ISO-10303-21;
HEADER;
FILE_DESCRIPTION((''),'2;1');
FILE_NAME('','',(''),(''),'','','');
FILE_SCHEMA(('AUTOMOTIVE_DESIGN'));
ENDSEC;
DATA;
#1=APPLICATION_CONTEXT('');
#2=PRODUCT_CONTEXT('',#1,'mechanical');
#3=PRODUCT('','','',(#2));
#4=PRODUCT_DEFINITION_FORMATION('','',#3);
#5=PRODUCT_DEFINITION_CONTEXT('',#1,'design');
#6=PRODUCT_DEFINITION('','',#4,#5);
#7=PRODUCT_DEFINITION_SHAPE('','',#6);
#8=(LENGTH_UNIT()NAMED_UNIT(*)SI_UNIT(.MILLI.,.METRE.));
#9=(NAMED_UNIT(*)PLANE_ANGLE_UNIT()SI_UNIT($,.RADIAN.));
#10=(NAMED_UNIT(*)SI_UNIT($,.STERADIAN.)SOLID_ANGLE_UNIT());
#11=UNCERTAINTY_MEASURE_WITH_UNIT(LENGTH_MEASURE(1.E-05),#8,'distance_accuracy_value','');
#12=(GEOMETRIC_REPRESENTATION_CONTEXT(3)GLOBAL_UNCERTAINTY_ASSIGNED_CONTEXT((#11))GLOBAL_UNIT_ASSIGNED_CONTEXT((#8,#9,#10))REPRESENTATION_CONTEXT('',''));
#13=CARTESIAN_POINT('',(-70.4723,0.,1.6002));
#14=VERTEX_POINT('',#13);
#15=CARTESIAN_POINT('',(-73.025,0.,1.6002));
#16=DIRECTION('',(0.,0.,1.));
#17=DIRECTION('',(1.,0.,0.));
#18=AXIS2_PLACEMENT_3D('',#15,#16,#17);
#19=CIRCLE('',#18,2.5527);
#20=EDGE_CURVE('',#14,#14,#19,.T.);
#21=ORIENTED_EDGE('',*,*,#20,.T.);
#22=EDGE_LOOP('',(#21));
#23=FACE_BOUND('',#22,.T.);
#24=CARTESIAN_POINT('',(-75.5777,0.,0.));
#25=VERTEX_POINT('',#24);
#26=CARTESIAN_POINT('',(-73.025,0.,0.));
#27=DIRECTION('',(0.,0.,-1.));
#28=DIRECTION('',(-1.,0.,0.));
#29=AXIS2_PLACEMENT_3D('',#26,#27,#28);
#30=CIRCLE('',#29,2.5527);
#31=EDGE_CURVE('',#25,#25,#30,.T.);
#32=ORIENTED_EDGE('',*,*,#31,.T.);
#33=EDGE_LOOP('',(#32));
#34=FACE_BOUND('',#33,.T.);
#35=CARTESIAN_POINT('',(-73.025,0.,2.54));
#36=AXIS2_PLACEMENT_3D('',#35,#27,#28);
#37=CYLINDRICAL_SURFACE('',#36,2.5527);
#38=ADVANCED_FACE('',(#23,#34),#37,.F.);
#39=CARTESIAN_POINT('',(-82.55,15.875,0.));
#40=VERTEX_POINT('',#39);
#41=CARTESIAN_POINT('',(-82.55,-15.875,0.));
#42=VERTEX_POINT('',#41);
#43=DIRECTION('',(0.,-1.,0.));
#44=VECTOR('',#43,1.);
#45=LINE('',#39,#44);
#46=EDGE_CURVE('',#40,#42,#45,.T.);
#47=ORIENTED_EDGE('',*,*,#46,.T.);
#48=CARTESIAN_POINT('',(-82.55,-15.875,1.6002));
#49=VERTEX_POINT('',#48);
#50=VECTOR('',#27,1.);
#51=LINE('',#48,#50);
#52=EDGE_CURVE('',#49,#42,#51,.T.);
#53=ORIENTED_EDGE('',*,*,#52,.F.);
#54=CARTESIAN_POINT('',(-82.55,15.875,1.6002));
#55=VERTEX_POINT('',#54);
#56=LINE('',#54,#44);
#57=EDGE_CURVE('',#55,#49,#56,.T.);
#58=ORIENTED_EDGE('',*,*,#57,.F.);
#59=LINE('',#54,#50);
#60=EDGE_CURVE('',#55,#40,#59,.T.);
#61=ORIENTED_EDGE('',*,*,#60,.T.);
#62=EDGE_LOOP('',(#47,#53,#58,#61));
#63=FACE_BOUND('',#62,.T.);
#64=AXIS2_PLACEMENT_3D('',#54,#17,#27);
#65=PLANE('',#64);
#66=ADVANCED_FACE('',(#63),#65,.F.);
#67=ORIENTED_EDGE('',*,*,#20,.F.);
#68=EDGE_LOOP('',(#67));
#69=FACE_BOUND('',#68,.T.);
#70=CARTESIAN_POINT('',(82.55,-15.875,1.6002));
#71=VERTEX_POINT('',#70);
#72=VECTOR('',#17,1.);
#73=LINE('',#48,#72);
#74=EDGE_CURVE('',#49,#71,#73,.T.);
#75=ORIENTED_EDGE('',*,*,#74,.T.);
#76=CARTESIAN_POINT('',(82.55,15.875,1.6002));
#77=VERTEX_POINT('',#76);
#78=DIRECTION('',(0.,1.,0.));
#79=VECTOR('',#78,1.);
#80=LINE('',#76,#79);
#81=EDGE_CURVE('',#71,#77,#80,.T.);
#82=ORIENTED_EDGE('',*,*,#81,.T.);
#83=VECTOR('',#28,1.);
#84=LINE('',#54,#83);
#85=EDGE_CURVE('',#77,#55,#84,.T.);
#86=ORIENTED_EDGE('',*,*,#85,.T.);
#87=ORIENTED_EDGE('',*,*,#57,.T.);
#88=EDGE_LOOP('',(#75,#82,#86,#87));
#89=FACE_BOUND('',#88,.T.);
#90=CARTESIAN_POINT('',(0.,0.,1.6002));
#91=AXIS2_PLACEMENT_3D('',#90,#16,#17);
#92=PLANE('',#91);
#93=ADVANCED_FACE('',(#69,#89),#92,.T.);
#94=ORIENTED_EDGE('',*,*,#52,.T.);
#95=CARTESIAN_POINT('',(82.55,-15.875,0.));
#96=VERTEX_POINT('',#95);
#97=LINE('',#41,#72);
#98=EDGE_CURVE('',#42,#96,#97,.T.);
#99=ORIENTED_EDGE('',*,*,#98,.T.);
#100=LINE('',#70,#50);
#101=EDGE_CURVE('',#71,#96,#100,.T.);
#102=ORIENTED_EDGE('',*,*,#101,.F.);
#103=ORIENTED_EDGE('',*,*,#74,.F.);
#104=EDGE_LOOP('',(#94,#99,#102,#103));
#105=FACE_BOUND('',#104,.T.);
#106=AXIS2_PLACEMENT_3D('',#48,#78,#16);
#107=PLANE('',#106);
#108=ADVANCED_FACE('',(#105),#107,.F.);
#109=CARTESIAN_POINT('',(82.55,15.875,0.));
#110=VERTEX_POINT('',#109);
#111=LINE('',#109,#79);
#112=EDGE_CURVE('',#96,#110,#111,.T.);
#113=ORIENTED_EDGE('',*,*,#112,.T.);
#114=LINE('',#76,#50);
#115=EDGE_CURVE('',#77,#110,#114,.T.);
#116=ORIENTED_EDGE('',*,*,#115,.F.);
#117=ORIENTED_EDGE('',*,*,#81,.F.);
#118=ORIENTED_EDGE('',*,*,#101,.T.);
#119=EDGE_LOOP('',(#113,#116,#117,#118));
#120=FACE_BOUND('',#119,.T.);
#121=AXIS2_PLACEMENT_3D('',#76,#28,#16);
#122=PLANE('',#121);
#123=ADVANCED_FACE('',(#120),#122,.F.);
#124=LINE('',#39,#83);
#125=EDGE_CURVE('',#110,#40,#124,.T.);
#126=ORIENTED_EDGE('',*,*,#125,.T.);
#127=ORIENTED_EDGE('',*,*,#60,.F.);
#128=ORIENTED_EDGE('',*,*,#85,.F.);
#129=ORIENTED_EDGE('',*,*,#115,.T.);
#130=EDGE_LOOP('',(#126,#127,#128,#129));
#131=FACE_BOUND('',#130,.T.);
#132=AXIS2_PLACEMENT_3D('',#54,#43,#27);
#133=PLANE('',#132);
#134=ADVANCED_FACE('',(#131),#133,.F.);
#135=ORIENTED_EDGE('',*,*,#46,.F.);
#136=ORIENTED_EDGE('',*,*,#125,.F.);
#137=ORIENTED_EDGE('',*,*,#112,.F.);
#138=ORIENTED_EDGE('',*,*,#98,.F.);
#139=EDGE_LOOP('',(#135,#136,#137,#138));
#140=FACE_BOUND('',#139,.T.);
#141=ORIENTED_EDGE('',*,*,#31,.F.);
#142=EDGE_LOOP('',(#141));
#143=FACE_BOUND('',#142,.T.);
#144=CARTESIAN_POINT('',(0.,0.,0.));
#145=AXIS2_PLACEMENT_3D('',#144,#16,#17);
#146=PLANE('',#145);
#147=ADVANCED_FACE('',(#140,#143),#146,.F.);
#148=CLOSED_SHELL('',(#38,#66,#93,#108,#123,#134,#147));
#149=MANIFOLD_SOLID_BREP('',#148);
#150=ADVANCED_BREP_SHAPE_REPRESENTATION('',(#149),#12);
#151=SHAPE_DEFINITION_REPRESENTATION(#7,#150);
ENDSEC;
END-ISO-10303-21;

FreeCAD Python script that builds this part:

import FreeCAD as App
import Part
import Sketcher
from FreeCAD import Vector
Q = App.Units.Quantity

doc = App.newDocument("Part")
body = doc.addObject("PartDesign::Body", "Body")

# Sketch on XY plane
sketch1 = body.newObject("Sketcher::SketchObject", "Sketch")
sketch1.AttachmentSupport = (doc.getObject("XY_Plane"), [""])
sketch1.MapMode = "FlatFace"
sketch1.addGeometry(Part.LineSegment(Vector(-83, 16, 0), Vector(-83, -16, 0)), False)
sketch1.addGeometry(Part.LineSegment(Vector(-83, -16, 0), Vector(83, -16, 0)), False)
sketch1.addGeometry(Part.LineSegment(Vector(83, -16, 0), Vector(83, 16, 0)), False)
sketch1.addGeometry(Part.LineSegment(Vector(83, 16, 0), Vector(-83, 16, 0)), False)
sketch1.addConstraint(Sketcher.Constraint("Coincident", 0, 2, 1, 1))
sketch1.addConstraint(Sketcher.Constraint("Coincident", 1, 2, 2, 1))
sketch1.addConstraint(Sketcher.Constraint("Coincident", 2, 2, 3, 1))
sketch1.addConstraint(Sketcher.Constraint("Coincident", 3, 2, 0, 1))
sketch1.addConstraint(Sketcher.Constraint("Vertical", 0))
sketch1.addConstraint(Sketcher.Constraint("Horizontal", 1))
sketch1.addConstraint(Sketcher.Constraint("Vertical", 2))
sketch1.addConstraint(Sketcher.Constraint("Horizontal", 3))
sketch1.addConstraint(Sketcher.Constraint("Symmetric", 0, 2, 2, 2, -1, 1))
sketch1.addConstraint(Sketcher.Constraint("DistanceX", 1, 1, 1, 2, Q("6.5 in")))
sketch1.addConstraint(Sketcher.Constraint("DistanceY", 0, 2, 0, 1, Q("1.25 in")))
pad1 = body.newObject("PartDesign::Pad", "Pad")
pad1.Profile = sketch1
pad1.Length = Q("0.063 in")

# Sketch on XY plane
sketch2 = body.newObject("Sketcher::SketchObject", "Sketch001")
sketch2.AttachmentSupport = (doc.getObject("XY_Plane"), [""])
sketch2.MapMode = "FlatFace"
sketch2.addGeometry(Part.Circle(Vector(-73, 0, 0), Vector(0, 0, 1), 2.6), False)
sketch2.addConstraint(Sketcher.Constraint("PointOnObject", 0, 3, -1))
sketch2.addConstraint(Sketcher.Constraint("Diameter", 0, Q("0.201 in")))
sketch2.addConstraint(Sketcher.Constraint("DistanceX", 0, 3, -1, 1, Q("2.875 in")))
pocket1 = body.newObject("PartDesign::Pocket", "Pocket")
pocket1.Profile = sketch2
pocket1.Length = Q("0.1 in")
pocket1.Reversed = True

doc.recompute()
